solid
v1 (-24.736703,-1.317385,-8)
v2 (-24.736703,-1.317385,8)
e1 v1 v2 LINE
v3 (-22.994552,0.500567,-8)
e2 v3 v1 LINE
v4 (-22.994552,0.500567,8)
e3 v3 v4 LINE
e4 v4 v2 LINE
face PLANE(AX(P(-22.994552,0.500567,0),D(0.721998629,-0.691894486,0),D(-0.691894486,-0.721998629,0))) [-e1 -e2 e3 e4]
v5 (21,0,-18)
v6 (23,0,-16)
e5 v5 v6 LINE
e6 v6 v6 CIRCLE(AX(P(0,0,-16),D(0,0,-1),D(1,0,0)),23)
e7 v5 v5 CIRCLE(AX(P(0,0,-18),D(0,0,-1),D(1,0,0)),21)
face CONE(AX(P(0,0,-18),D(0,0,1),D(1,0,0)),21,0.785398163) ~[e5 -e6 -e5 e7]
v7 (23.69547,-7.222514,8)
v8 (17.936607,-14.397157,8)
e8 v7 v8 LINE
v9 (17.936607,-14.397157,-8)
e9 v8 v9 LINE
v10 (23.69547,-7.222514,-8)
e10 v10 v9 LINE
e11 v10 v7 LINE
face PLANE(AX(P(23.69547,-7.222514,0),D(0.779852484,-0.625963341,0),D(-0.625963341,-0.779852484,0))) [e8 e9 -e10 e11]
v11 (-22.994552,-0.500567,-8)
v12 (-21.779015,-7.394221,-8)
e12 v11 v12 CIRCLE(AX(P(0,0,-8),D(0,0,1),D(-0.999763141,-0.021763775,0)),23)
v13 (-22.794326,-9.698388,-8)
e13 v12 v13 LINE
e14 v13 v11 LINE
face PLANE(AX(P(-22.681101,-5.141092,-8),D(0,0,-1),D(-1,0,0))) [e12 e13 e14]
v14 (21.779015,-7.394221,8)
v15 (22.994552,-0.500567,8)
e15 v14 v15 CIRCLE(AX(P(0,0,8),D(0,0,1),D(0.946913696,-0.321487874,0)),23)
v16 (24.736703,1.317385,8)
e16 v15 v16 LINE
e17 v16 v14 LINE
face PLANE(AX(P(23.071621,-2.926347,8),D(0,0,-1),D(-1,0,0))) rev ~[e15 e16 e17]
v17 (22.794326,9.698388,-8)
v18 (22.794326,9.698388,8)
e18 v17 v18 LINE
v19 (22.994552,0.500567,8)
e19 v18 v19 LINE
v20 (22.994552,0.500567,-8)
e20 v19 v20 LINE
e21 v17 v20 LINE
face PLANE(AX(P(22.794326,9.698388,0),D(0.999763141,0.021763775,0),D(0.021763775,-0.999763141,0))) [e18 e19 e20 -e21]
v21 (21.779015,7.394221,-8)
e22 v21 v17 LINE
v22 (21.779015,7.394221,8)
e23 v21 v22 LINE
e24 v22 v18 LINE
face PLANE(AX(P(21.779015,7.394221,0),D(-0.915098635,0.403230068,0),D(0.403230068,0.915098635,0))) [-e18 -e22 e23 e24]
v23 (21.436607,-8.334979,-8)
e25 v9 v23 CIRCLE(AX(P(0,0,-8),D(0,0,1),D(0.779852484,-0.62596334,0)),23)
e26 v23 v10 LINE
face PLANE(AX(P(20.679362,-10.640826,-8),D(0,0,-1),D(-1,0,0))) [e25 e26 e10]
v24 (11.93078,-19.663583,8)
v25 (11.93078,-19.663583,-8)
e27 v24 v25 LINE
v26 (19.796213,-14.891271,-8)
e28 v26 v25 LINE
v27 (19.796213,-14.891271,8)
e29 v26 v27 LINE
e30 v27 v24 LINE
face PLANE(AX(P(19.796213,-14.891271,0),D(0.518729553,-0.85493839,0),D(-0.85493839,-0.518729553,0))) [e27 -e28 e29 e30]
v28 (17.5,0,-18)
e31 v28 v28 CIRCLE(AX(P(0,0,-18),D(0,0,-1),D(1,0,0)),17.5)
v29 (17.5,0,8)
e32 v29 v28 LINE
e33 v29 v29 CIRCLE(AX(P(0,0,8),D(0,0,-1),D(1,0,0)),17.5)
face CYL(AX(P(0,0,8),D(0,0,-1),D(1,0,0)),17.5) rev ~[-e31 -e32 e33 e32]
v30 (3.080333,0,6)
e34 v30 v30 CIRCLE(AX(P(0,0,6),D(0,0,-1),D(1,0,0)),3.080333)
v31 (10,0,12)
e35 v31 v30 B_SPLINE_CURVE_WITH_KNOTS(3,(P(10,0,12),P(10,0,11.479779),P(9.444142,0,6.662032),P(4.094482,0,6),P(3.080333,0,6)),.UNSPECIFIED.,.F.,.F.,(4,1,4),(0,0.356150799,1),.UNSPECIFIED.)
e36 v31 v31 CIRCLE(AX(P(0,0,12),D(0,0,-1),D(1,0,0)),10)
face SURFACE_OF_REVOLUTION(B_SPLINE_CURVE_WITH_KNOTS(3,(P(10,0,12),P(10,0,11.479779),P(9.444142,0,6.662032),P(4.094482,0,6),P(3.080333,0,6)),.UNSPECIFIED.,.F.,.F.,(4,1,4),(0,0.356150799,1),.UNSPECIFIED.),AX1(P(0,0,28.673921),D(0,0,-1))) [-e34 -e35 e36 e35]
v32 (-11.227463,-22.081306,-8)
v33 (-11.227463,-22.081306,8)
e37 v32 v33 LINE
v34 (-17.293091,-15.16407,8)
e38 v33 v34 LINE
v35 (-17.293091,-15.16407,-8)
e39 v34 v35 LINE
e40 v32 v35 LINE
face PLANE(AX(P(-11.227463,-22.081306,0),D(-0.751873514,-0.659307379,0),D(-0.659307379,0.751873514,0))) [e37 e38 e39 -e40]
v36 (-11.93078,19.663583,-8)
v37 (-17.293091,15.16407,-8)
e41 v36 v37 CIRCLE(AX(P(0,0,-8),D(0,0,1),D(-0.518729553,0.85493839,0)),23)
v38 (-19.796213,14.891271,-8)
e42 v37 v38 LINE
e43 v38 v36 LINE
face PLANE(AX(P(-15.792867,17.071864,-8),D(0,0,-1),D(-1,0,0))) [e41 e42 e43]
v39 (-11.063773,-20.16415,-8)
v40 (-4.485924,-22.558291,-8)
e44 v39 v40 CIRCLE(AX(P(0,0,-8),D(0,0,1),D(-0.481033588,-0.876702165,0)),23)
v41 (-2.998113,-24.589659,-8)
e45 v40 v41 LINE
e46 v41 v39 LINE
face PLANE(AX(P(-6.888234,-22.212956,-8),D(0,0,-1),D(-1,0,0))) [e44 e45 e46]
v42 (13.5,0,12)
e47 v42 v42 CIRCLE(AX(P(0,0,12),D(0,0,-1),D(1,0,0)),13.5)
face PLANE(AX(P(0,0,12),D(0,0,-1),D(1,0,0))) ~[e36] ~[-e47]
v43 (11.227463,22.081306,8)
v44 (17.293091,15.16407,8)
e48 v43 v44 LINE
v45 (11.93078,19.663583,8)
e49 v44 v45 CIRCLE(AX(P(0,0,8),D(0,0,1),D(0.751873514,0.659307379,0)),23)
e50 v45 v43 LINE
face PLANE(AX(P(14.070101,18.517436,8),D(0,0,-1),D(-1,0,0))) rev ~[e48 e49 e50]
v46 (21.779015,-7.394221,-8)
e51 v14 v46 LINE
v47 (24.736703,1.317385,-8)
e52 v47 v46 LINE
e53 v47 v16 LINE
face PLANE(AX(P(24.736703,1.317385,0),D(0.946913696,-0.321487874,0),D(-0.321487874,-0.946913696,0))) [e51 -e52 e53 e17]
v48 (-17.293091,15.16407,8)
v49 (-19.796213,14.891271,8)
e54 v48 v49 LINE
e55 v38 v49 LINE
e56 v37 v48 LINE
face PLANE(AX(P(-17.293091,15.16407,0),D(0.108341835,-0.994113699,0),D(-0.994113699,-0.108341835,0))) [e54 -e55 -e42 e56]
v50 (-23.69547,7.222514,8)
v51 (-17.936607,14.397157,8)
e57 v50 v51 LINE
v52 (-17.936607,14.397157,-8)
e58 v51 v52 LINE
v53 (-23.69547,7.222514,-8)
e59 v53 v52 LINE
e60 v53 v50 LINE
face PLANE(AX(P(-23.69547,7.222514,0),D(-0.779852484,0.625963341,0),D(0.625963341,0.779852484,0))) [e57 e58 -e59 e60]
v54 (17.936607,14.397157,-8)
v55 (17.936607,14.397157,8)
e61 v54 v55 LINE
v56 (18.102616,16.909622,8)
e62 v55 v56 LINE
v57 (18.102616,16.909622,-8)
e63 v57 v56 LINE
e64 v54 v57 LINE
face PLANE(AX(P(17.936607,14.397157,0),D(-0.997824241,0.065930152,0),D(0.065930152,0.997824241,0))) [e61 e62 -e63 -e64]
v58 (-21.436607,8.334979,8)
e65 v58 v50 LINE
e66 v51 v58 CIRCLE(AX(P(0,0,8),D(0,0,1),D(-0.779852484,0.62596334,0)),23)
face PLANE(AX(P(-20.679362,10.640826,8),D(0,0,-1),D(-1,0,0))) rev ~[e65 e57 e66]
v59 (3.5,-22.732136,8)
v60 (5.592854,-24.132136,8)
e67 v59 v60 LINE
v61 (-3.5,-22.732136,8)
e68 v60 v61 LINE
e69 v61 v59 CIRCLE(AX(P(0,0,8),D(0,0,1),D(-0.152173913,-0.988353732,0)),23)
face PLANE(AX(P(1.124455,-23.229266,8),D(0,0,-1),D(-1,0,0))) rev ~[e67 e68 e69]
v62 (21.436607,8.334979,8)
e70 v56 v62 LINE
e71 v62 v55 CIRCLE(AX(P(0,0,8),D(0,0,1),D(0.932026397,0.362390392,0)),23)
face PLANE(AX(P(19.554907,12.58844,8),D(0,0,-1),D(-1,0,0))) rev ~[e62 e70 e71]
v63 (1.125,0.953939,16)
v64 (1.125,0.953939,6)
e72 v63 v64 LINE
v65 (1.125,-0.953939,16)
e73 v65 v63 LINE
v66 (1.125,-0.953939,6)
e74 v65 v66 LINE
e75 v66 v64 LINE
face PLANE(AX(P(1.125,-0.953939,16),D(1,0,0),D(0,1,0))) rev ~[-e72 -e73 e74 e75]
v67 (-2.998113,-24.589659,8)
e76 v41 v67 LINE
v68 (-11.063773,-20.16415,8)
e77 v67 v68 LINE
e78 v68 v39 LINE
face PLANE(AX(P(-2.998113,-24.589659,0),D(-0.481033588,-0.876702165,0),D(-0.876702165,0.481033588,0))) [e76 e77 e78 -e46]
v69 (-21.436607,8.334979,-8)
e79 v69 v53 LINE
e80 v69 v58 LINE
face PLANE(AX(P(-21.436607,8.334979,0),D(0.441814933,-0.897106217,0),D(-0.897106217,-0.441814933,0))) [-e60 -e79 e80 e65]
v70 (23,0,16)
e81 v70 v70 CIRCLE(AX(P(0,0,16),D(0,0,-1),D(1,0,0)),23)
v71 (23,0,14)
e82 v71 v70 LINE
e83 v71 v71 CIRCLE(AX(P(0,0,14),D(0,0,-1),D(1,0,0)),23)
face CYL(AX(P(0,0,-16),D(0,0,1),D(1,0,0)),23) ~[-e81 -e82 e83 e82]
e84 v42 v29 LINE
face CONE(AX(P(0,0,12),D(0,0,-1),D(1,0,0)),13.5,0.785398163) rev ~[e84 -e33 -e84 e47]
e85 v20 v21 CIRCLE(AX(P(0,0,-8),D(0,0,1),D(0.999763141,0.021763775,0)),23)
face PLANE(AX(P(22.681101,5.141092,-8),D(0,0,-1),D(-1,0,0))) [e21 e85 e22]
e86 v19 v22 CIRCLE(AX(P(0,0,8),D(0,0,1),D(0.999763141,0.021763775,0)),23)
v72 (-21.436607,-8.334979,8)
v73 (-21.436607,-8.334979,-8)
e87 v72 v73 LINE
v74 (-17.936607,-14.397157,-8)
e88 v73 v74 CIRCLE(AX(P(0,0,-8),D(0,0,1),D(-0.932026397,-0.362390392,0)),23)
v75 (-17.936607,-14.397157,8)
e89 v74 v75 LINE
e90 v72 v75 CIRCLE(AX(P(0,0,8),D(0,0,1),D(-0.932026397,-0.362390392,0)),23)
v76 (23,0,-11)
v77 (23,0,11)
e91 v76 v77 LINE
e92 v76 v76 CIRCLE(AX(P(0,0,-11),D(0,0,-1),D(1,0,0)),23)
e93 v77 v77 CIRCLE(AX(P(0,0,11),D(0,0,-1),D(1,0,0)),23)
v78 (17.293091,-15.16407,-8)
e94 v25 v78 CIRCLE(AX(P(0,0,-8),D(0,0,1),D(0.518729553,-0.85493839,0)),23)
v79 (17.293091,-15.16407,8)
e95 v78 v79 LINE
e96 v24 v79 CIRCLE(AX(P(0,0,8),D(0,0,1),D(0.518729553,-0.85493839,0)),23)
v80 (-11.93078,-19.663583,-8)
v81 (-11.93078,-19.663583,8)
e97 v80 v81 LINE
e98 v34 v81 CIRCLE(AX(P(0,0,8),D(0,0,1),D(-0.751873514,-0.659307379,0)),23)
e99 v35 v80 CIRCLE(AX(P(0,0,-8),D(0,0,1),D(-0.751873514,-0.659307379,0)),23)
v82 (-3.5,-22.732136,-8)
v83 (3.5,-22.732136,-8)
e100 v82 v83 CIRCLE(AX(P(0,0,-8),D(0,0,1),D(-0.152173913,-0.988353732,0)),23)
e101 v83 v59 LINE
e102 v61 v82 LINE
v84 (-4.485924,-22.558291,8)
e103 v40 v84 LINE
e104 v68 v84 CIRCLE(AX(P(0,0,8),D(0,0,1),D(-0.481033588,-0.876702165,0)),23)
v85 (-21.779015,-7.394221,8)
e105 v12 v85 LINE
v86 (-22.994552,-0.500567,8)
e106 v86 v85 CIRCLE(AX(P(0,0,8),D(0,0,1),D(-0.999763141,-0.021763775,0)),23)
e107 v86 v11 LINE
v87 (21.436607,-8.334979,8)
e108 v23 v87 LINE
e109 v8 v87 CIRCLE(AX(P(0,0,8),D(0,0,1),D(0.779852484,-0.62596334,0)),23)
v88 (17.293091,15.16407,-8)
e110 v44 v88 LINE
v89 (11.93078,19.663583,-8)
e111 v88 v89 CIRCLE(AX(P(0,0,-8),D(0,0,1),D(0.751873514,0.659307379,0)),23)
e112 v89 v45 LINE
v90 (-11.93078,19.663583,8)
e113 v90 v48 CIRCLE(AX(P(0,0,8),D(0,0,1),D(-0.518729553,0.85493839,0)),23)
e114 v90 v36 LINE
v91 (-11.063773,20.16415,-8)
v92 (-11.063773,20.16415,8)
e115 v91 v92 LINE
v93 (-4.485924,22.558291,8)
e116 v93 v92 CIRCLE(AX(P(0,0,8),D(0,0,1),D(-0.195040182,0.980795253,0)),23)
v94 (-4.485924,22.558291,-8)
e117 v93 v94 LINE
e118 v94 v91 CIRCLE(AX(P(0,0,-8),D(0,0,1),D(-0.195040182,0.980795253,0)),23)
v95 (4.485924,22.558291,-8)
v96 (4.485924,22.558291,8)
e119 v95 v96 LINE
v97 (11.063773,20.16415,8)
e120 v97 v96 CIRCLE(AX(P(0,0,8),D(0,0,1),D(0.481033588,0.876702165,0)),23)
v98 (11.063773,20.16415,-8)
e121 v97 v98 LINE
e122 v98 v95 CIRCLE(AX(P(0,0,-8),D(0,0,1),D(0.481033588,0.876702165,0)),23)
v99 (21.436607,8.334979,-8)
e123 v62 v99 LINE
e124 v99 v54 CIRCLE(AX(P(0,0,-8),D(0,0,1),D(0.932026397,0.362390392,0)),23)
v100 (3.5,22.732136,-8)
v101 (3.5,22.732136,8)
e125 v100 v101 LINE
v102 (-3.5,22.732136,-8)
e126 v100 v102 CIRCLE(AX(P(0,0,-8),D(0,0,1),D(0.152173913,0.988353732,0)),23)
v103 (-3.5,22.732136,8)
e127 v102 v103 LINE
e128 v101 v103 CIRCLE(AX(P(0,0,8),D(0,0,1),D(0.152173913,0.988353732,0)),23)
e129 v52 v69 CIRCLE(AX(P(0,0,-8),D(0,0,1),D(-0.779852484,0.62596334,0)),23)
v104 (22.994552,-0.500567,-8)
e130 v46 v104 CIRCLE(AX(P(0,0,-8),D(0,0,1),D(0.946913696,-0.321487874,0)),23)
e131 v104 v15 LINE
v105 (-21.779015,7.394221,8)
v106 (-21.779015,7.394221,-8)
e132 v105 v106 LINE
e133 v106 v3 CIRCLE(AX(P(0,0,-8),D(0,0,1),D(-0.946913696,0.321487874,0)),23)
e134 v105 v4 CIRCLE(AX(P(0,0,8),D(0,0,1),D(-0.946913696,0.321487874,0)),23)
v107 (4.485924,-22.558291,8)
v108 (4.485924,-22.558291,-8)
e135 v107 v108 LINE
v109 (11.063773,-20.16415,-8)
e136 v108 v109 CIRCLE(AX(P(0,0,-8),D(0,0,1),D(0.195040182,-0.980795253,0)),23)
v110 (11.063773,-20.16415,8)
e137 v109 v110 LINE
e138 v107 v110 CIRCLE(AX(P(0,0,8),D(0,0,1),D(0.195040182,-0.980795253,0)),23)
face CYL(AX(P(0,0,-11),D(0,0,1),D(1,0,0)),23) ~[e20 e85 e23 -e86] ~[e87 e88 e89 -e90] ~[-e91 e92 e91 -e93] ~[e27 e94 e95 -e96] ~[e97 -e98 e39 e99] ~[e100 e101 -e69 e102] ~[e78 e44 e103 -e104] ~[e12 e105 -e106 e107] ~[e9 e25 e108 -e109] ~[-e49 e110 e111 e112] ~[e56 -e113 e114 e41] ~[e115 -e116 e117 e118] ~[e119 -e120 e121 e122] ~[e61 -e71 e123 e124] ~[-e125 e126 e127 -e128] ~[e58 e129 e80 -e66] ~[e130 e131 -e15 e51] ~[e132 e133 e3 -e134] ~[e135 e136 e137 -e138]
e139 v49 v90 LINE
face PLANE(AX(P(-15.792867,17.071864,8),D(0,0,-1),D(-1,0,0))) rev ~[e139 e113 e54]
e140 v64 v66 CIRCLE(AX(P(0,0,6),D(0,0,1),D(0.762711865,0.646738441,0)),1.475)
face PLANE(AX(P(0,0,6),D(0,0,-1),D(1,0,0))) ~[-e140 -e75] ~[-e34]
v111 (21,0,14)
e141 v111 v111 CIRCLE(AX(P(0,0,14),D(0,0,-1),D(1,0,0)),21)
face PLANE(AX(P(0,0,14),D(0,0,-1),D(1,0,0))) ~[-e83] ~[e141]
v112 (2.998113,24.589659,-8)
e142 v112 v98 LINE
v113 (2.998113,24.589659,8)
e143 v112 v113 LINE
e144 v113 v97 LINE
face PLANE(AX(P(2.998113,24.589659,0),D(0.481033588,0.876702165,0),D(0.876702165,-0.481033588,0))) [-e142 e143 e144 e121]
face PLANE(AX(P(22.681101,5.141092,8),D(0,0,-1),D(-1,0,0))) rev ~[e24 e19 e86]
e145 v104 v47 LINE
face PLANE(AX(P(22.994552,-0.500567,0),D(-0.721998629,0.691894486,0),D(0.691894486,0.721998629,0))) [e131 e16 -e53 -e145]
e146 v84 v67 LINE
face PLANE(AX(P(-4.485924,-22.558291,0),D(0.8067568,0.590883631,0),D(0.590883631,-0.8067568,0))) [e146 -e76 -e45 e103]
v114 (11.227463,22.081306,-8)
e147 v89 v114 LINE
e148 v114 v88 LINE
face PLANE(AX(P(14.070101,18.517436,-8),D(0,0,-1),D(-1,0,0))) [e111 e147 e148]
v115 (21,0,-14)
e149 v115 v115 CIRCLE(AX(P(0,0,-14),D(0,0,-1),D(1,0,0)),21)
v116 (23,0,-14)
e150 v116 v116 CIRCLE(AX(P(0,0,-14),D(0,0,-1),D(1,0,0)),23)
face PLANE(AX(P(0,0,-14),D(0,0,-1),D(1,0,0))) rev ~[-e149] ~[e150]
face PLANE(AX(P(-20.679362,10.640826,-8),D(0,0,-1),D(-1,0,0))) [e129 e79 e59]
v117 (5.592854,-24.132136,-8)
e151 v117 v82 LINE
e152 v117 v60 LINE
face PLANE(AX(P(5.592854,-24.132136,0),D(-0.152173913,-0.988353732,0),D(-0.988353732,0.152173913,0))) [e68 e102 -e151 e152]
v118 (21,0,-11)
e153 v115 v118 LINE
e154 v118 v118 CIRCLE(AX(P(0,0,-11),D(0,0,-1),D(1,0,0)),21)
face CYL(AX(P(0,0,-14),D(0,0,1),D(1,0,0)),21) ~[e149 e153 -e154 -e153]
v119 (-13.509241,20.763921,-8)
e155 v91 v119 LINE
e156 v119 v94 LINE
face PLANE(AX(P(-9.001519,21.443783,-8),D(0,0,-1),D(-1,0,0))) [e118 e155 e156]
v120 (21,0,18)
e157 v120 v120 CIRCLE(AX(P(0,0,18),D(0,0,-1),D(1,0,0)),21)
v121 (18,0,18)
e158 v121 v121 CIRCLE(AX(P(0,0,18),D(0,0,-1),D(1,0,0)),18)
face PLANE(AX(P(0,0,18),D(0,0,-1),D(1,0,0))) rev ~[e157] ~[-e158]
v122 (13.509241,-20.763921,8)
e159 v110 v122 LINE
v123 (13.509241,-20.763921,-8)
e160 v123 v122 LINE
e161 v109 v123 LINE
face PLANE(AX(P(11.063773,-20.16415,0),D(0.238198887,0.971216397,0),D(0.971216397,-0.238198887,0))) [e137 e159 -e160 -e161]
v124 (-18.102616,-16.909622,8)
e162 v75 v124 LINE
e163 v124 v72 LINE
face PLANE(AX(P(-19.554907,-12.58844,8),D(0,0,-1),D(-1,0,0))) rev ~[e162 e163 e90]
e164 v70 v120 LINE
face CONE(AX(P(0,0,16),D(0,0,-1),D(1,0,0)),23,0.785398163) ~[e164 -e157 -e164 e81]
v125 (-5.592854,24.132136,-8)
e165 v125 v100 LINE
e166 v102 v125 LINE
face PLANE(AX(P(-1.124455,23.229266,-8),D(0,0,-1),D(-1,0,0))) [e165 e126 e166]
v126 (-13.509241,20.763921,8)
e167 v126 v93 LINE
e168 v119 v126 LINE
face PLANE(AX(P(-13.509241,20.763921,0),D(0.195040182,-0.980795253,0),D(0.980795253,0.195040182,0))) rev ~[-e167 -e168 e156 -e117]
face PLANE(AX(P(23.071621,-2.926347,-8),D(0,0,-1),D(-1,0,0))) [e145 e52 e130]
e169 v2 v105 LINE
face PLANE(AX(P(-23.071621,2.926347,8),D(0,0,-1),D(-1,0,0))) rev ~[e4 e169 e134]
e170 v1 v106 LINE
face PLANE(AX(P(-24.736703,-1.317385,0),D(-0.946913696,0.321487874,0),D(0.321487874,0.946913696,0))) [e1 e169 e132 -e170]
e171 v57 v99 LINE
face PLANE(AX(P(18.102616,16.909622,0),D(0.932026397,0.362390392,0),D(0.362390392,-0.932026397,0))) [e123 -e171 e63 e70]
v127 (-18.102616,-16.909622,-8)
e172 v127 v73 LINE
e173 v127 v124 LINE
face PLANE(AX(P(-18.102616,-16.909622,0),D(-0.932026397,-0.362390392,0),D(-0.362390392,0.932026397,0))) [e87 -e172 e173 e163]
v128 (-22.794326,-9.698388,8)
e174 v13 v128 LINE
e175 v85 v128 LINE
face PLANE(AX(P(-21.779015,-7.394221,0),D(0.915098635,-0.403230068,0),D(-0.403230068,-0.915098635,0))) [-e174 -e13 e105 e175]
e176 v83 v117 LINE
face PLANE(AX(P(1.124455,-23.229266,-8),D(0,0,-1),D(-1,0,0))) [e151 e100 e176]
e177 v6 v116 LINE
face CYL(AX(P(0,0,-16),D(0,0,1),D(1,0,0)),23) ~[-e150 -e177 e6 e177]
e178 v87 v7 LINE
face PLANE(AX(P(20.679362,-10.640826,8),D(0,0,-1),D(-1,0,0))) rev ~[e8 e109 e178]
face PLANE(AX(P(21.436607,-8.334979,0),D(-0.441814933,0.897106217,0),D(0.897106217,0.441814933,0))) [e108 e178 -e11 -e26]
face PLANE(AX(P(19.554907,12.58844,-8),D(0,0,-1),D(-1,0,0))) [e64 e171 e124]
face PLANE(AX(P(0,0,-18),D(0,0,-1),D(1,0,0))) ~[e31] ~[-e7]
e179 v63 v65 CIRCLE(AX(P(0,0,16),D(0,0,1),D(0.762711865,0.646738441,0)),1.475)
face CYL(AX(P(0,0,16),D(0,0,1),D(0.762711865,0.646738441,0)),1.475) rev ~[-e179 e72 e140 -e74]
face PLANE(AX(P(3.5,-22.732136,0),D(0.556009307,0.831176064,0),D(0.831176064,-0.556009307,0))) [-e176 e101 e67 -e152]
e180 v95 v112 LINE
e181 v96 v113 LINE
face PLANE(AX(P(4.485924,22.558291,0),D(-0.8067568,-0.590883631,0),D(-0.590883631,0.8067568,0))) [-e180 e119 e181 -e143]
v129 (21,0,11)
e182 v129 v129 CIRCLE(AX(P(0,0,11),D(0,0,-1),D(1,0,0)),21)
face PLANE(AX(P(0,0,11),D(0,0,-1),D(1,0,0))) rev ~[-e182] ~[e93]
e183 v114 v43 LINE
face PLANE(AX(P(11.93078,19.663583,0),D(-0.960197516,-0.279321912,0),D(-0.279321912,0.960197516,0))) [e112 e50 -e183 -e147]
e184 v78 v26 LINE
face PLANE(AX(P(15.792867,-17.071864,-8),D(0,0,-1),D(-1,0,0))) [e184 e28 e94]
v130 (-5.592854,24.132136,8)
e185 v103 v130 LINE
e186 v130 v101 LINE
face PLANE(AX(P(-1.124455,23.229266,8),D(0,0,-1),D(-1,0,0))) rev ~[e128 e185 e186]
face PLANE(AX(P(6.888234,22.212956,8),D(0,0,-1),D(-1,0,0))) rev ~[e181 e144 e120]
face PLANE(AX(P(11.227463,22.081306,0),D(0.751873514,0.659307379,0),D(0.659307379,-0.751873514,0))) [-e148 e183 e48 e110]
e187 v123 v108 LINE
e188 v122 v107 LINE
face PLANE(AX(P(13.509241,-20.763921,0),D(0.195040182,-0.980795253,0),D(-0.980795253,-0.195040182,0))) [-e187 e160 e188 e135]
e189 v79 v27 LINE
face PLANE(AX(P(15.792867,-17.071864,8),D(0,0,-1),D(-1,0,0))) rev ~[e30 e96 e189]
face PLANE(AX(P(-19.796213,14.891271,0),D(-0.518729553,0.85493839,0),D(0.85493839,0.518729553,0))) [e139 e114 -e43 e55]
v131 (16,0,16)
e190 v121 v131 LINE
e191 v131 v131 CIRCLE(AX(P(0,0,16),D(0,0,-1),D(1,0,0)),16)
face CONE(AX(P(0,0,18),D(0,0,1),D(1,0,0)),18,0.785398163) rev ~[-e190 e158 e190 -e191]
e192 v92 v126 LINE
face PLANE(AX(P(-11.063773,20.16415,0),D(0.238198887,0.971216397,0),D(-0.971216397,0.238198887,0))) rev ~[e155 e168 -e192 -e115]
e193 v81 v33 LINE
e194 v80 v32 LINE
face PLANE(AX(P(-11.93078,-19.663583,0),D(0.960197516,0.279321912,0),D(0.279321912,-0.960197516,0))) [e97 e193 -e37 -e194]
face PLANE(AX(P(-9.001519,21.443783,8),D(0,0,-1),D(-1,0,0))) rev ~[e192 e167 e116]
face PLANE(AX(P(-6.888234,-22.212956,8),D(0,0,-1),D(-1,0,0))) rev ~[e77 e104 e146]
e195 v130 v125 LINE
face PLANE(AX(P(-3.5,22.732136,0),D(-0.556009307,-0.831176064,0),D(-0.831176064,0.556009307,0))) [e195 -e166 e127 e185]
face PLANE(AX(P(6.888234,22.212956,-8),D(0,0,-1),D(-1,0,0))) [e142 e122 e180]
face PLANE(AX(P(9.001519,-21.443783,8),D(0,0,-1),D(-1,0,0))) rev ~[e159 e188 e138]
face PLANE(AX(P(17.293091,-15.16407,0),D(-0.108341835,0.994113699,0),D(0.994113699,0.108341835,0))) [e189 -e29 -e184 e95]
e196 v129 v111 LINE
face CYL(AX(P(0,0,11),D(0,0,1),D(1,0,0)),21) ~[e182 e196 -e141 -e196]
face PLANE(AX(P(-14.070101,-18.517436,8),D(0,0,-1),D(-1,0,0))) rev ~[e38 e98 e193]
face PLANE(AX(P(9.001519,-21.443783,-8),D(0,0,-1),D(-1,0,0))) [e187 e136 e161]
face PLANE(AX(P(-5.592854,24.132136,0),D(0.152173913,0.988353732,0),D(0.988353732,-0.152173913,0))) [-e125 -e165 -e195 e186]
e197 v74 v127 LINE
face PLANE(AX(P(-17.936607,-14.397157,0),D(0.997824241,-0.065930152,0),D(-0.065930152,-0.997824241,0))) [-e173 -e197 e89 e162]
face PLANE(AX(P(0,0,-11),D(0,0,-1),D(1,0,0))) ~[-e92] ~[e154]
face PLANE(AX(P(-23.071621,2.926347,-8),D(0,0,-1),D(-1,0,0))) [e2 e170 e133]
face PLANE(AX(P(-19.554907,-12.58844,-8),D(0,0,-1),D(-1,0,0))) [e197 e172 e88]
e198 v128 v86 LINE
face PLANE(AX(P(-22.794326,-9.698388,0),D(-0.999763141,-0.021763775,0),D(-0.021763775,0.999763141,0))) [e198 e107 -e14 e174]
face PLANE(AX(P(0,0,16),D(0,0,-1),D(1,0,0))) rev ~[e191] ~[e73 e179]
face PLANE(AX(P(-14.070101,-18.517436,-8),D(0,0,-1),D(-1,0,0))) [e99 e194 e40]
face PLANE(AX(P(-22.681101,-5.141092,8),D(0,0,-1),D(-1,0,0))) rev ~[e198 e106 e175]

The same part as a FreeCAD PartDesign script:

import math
import FreeCAD as App
import Part
import Sketcher

doc = App.newDocument("Part")
body = doc.addObject("PartDesign::Body", "Body")

# Sketch on YZ plane
sketch1 = doc.addObject("Sketcher::SketchObject", "Sketch")
body.addObject(sketch1)
sketch1.AttachmentSupport = (doc.YZ_Plane, [""])
sketch1.MapMode = "FlatFace"
sketch1.addGeometry(Part.LineSegment(App.Vector(23, 16, 0), App.Vector(21, 18, 0)), False)
sketch1.addGeometry(Part.LineSegment(App.Vector(21, 18, 0), App.Vector(18, 18, 0)), False)
sketch1.addGeometry(Part.LineSegment(App.Vector(18, 18, 0), App.Vector(16, 16, 0)), False)
sketch1.addGeometry(Part.LineSegment(App.Vector(16, 16, 0), App.Vector(0, 16, 0)), False)
sketch1.addGeometry(Part.LineSegment(App.Vector(0, 16, 0), App.Vector(0, 6, 0)), False)
sketch1.addGeometry(Part.LineSegment(App.Vector(0, 6, 0), App.Vector(3.080333, 6, 0)), False)
sketch1.addGeometry(Part.BSplineCurve([App.Vector(10, 12, 0), App.Vector(10, 11.479779, 0), App.Vector(9.444142, 6.662032, 0), App.Vector(4.094482, 6, 0), App.Vector(3.080333, 6, 0)], [4, 1, 4], [0, 0.356150799, 1], False, 3, [1, 1, 1, 1, 1], False), False)
sketch1.addGeometry(Part.LineSegment(App.Vector(10, 12, 0), App.Vector(13.5, 12, 0)), False)
sketch1.addGeometry(Part.LineSegment(App.Vector(13.5, 12, 0), App.Vector(17.5, 8, 0)), False)
sketch1.addGeometry(Part.LineSegment(App.Vector(17.5, 8, 0), App.Vector(17.5, -18, 0)), False)
sketch1.addGeometry(Part.LineSegment(App.Vector(17.5, -18, 0), App.Vector(21, -18, 0)), False)
sketch1.addGeometry(Part.LineSegment(App.Vector(21, -18, 0), App.Vector(23, -16, 0)), False)
sketch1.addGeometry(Part.LineSegment(App.Vector(23, -16, 0), App.Vector(23, 16, 0)), False)
sketch1.addConstraint(Sketcher.Constraint("Block", 6))
sketch1.addConstraint(Sketcher.Constraint("Coincident", 0, 2, 1, 1))
sketch1.addConstraint(Sketcher.Constraint("Coincident", 1, 2, 2, 1))
sketch1.addConstraint(Sketcher.Constraint("Coincident", 2, 2, 3, 1))
sketch1.addConstraint(Sketcher.Constraint("Coincident", 3, 2, 4, 1))
sketch1.addConstraint(Sketcher.Constraint("Coincident", 4, 2, 5, 1))
sketch1.addConstraint(Sketcher.Constraint("Coincident", 5, 2, 6, 2))
sketch1.addConstraint(Sketcher.Constraint("Coincident", 6, 1, 7, 1))
sketch1.addConstraint(Sketcher.Constraint("Coincident", 7, 2, 8, 1))
sketch1.addConstraint(Sketcher.Constraint("Coincident", 8, 2, 9, 1))
sketch1.addConstraint(Sketcher.Constraint("Coincident", 9, 2, 10, 1))
sketch1.addConstraint(Sketcher.Constraint("Coincident", 10, 2, 11, 1))
sketch1.addConstraint(Sketcher.Constraint("Coincident", 11, 2, 12, 1))
sketch1.addConstraint(Sketcher.Constraint("Coincident", 12, 2, 0, 1))
sketch1.addConstraint(Sketcher.Constraint("Horizontal", 1))
sketch1.addConstraint(Sketcher.Constraint("Horizontal", 3))
sketch1.addConstraint(Sketcher.Constraint("Vertical", 4))
sketch1.addConstraint(Sketcher.Constraint("Horizontal", 5))
sketch1.addConstraint(Sketcher.Constraint("Horizontal", 7))
sketch1.addConstraint(Sketcher.Constraint("Vertical", 9))
sketch1.addConstraint(Sketcher.Constraint("Horizontal", 10))
sketch1.addConstraint(Sketcher.Constraint("Vertical", 12))
sketch1.addConstraint(Sketcher.Constraint("Symmetric", 0, 2, 10, 2, -1))
sketch1.addConstraint(Sketcher.Constraint("PointOnObject", 3, 2, -2))
sketch1.addConstraint(Sketcher.Constraint("Perpendicular", 0, 2))
sketch1.addConstraint(Sketcher.Constraint("Perpendicular", 2, 8))
sketch1.addConstraint(Sketcher.Constraint("Perpendicular", 8, 11))
sketch1.addConstraint(Sketcher.Constraint("Horizontal", 3, 2, 12, 2))
sketch1.addConstraint(Sketcher.Constraint("Equal", 7, 10))
sketch1.addConstraint(Sketcher.Constraint("Equal", 0, 2))
sketch1.addConstraint(Sketcher.Constraint("DistanceX", 1, 2, 1, 1, 3.0))
sketch1.addConstraint(Sketcher.Constraint("DistanceX", 3, 2, 3, 1, 16.0))
sketch1.addConstraint(Sketcher.Constraint("DistanceY", 4, 2, 4, 1, 10.0))
sketch1.addConstraint(Sketcher.Constraint("DistanceY", 9, 2, 9, 1, 26.0))
sketch1.addConstraint(Sketcher.Constraint("DistanceX", -1, 1, 0, 2, 21.0))
revolution = doc.addObject("PartDesign::Revolution", "Revolution")
body.addObject(revolution)
revolution.Profile = sketch1
revolution.ReferenceAxis = (sketch1, ["V_Axis"])
revolution.Angle = 360

# Sketch on XY plane
sketch2 = doc.addObject("Sketcher::SketchObject", "Sketch001")
body.addObject(sketch2)
sketch2.AttachmentSupport = (doc.XY_Plane, [""])
sketch2.MapMode = "FlatFace"
sketch2.AttachmentOffset = App.Placement(App.Vector(0, 0, 16), App.Rotation())
sketch2.addGeometry(Part.LineSegment(App.Vector(1.1, -1, 0), App.Vector(1.1, 1, 0)), False)
sketch2.addGeometry(Part.ArcOfCircle(Part.Circle(App.Vector(0, 0, 0), App.Vector(0, 0, 1), 1.5), math.radians(40), math.radians(320)), False)
sketch2.addConstraint(Sketcher.Constraint("Coincident", 0, 1, 1, 2))
sketch2.addConstraint(Sketcher.Constraint("Coincident", 1, 1, 0, 2))
sketch2.addConstraint(Sketcher.Constraint("Vertical", 0))
sketch2.addConstraint(Sketcher.Constraint("Coincident", 1, 3, -1, 1))
sketch2.addConstraint(Sketcher.Constraint("Radius", 1, 1.475))
sketch2.addConstraint(Sketcher.Constraint("DistanceX", -1, 1, 0, 1, 1.125))
pocket1 = doc.addObject("PartDesign::Pocket", "Pocket")
body.addObject(pocket1)
pocket1.Profile = sketch2
pocket1.Type = "ThroughAll"

# Sketch on YZ plane
sketch3 = doc.addObject("Sketcher::SketchObject", "Sketch002")
body.addObject(sketch3)
sketch3.AttachmentSupport = (doc.YZ_Plane, [""])
sketch3.MapMode = "FlatFace"
sketch3.addGeometry(Part.LineSegment(App.Vector(23, -16, 0), App.Vector(21, -18, 0)), False)
sketch3.addGeometry(Part.LineSegment(App.Vector(21, -18, 0), App.Vector(24.3, -18, 0)), False)
sketch3.addGeometry(Part.LineSegment(App.Vector(24.3, -18, 0), App.Vector(24.3, 18, 0)), False)
sketch3.addGeometry(Part.LineSegment(App.Vector(24.3, 18, 0), App.Vector(21, 18, 0)), False)
sketch3.addGeometry(Part.LineSegment(App.Vector(21, 18, 0), App.Vector(23, 16, 0)), False)
sketch3.addGeometry(Part.LineSegment(App.Vector(23, 16, 0), App.Vector(23, 14, 0)), False)
sketch3.addGeometry(Part.LineSegment(App.Vector(23, 14, 0), App.Vector(21, 14, 0)), False)
sketch3.addGeometry(Part.LineSegment(App.Vector(21, 14, 0), App.Vector(21, 11, 0)), False)
sketch3.addGeometry(Part.LineSegment(App.Vector(21, 11, 0), App.Vector(23, 11, 0)), False)
sketch3.addGeometry(Part.LineSegment(App.Vector(23, 11, 0), App.Vector(23, -11, 0)), False)
sketch3.addGeometry(Part.LineSegment(App.Vector(23, -11, 0), App.Vector(21, -11, 0)), False)
sketch3.addGeometry(Part.LineSegment(App.Vector(21, -11, 0), App.Vector(21, -14, 0)), False)
sketch3.addGeometry(Part.LineSegment(App.Vector(21, -14, 0), App.Vector(23, -14, 0)), False)
sketch3.addGeometry(Part.LineSegment(App.Vector(23, -14, 0), App.Vector(23, -16, 0)), False)
sketch3.addConstraint(Sketcher.Constraint("Coincident", 0, 2, 1, 1))
sketch3.addConstraint(Sketcher.Constraint("Coincident", 1, 2, 2, 1))
sketch3.addConstraint(Sketcher.Constraint("Coincident", 2, 2, 3, 1))
sketch3.addConstraint(Sketcher.Constraint("Coincident", 3, 2, 4, 1))
sketch3.addConstraint(Sketcher.Constraint("Coincident", 4, 2, 5, 1))
sketch3.addConstraint(Sketcher.Constraint("Coincident", 5, 2, 6, 1))
sketch3.addConstraint(Sketcher.Constraint("Coincident", 6, 2, 7, 1))
sketch3.addConstraint(Sketcher.Constraint("Coincident", 7, 2, 8, 1))
sketch3.addConstraint(Sketcher.Constraint("Coincident", 8, 2, 9, 1))
sketch3.addConstraint(Sketcher.Constraint("Coincident", 9, 2, 10, 1))
sketch3.addConstraint(Sketcher.Constraint("Coincident", 10, 2, 11, 1))
sketch3.addConstraint(Sketcher.Constraint("Coincident", 11, 2, 12, 1))
sketch3.addConstraint(Sketcher.Constraint("Coincident", 12, 2, 13, 1))
sketch3.addConstraint(Sketcher.Constraint("Coincident", 13, 2, 0, 1))
sketch3.addConstraint(Sketcher.Constraint("Horizontal", 1))
sketch3.addConstraint(Sketcher.Constraint("Vertical", 2))
sketch3.addConstraint(Sketcher.Constraint("Horizontal", 3))
sketch3.addConstraint(Sketcher.Constraint("Vertical", 5))
sketch3.addConstraint(Sketcher.Constraint("Horizontal", 6))
sketch3.addConstraint(Sketcher.Constraint("Vertical", 7))
sketch3.addConstraint(Sketcher.Constraint("Horizontal", 8))
sketch3.addConstraint(Sketcher.Constraint("Vertical", 9))
sketch3.addConstraint(Sketcher.Constraint("Horizontal", 10))
sketch3.addConstraint(Sketcher.Constraint("Vertical", 11))
sketch3.addConstraint(Sketcher.Constraint("Horizontal", 12))
sketch3.addConstraint(Sketcher.Constraint("Vertical", 13))
sketch3.addConstraint(Sketcher.Constraint("Symmetric", 0, 2, 3, 2, -1))
sketch3.addConstraint(Sketcher.Constraint("Symmetric", 7, 2, 10, 2, -1))
sketch3.addConstraint(Sketcher.Constraint("Symmetric", 5, 2, 12, 2, -1))
sketch3.addConstraint(Sketcher.Constraint("Perpendicular", 0, 4))
sketch3.addConstraint(Sketcher.Constraint("Vertical", 3, 2, 6, 2))
sketch3.addConstraint(Sketcher.Constraint("Vertical", 5, 2, 8, 2))
sketch3.addConstraint(Sketcher.Constraint("Equal", 12, 5))
sketch3.addConstraint(Sketcher.Constraint("Equal", 5, 13))
sketch3.addConstraint(Sketcher.Constraint("DistanceX", 6, 2, 6, 1, 2.0))
sketch3.addConstraint(Sketcher.Constraint("DistanceY", 2, 1, 2, 2, 36.0))
sketch3.addConstraint(Sketcher.Constraint("DistanceY", 7, 2, 7, 1, 3.0))
sketch3.addConstraint(Sketcher.Constraint("DistanceX", -1, 1, 0, 2, 21.0))
sketch3.addConstraint(Sketcher.Constraint("DistanceX", 1, 1, 1, 2, 3.334722))
groove = doc.addObject("PartDesign::Groove", "Groove")
body.addObject(groove)
groove.Profile = sketch3
groove.ReferenceAxis = (sketch3, ["V_Axis"])
groove.Angle = 360

# Sketch on XY plane
sketch4 = doc.addObject("Sketcher::SketchObject", "Sketch003")
body.addObject(sketch4)
sketch4.AttachmentSupport = (doc.XY_Plane, [""])
sketch4.MapMode = "FlatFace"
sketch4.addGeometry(Part.LineSegment(App.Vector(-5.6, 24.1, 0), App.Vector(-3.5, 22.7, 0)), False)
sketch4.addGeometry(Part.ArcOfCircle(Part.Circle(App.Vector(0, 0, 0), App.Vector(0, 0, 1), 23), math.radians(81.25), math.radians(98.75)), False)
sketch4.addGeometry(Part.LineSegment(App.Vector(3.5, 22.7, 0), App.Vector(-5.6, 24.1, 0)), False)
sketch4.addGeometry(Part.LineSegment(App.Vector(11.1, 20.2, 0), App.Vector(3, 24.6, 0)), False)
sketch4.addGeometry(Part.LineSegment(App.Vector(3, 24.6, 0), App.Vector(4.5, 22.6, 0)), False)
sketch4.addGeometry(Part.ArcOfCircle(Part.Circle(App.Vector(0, 0, 0), App.Vector(0, 0, 1), 23), math.radians(61.25), math.radians(78.75)), False)
sketch4.addGeometry(Part.LineSegment(App.Vector(17.3, 15.2, 0), App.Vector(11.2, 22.1, 0)), False)
sketch4.addGeometry(Part.LineSegment(App.Vector(11.2, 22.1, 0), App.Vector(11.9, 19.7, 0)), False)
sketch4.addGeometry(Part.ArcOfCircle(Part.Circle(App.Vector(0, 0, 0), App.Vector(0, 0, 1), 23), math.radians(41.25), math.radians(58.75)), False)
sketch4.addGeometry(Part.LineSegment(App.Vector(21.4, 8.3, 0), App.Vector(18.1, 16.9, 0)), False)
sketch4.addGeometry(Part.LineSegment(App.Vector(18.1, 16.9, 0), App.Vector(17.9, 14.4, 0)), False)
sketch4.addGeometry(Part.ArcOfCircle(Part.Circle(App.Vector(0, 0, 0), App.Vector(0, 0, 1), 23), math.radians(21.25), math.radians(38.75)), False)
sketch4.addGeometry(Part.LineSegment(App.Vector(23, 0.5, 0), App.Vector(22.8, 9.7, 0)), False)
sketch4.addGeometry(Part.LineSegment(App.Vector(22.8, 9.7, 0), App.Vector(21.8, 7.4, 0)), False)
sketch4.addGeometry(Part.ArcOfCircle(Part.Circle(App.Vector(0, 0, 0), App.Vector(0, 0, 1), 23), math.radians(1.25), math.radians(18.75)), False)
sketch4.addGeometry(Part.LineSegment(App.Vector(21.8, -7.4, 0), App.Vector(24.7, 1.3, 0)), False)
sketch4.addGeometry(Part.LineSegment(App.Vector(24.7, 1.3, 0), App.Vector(23, -0.5, 0)), False)
sketch4.addGeometry(Part.ArcOfCircle(Part.Circle(App.Vector(0, 0, 0), App.Vector(0, 0, 1), 23), math.radians(-18.75), math.radians(-1.25)), False)
sketch4.addGeometry(Part.LineSegment(App.Vector(17.9, -14.4, 0), App.Vector(23.7, -7.2, 0)), False)
sketch4.addGeometry(Part.LineSegment(App.Vector(23.7, -7.2, 0), App.Vector(21.4, -8.3, 0)), False)
sketch4.addGeometry(Part.ArcOfCircle(Part.Circle(App.Vector(0, 0, 0), App.Vector(0, 0, 1), 23), math.radians(-38.75), math.radians(-21.25)), False)
sketch4.addGeometry(Part.LineSegment(App.Vector(11.9, -19.7, 0), App.Vector(19.8, -14.9, 0)), False)
sketch4.addGeometry(Part.LineSegment(App.Vector(19.8, -14.9, 0), App.Vector(17.3, -15.2, 0)), False)
sketch4.addGeometry(Part.ArcOfCircle(Part.Circle(App.Vector(0, 0, 0), App.Vector(0, 0, 1), 23), math.radians(-58.75), math.radians(-41.25)), False)
sketch4.addGeometry(Part.LineSegment(App.Vector(4.5, -22.6, 0), App.Vector(13.5, -20.8, 0)), False)
sketch4.addGeometry(Part.LineSegment(App.Vector(13.5, -20.8, 0), App.Vector(11.1, -20.2, 0)), False)
sketch4.addGeometry(Part.ArcOfCircle(Part.Circle(App.Vector(0, 0, 0), App.Vector(0, 0, 1), 23), math.radians(-78.75), math.radians(-61.25)), False)
sketch4.addGeometry(Part.LineSegment(App.Vector(-3.5, -22.7, 0), App.Vector(5.6, -24.1, 0)), False)
sketch4.addGeometry(Part.LineSegment(App.Vector(5.6, -24.1, 0), App.Vector(3.5, -22.7, 0)), False)
sketch4.addGeometry(Part.ArcOfCircle(Part.Circle(App.Vector(0, 0, 0), App.Vector(0, 0, 1), 23), math.radians(-98.75), math.radians(-81.25)), False)
sketch4.addGeometry(Part.LineSegment(App.Vector(-11.1, -20.2, 0), App.Vector(-3, -24.6, 0)), False)
sketch4.addGeometry(Part.LineSegment(App.Vector(-3, -24.6, 0), App.Vector(-4.5, -22.6, 0)), False)
sketch4.addGeometry(Part.ArcOfCircle(Part.Circle(App.Vector(0, 0, 0), App.Vector(0, 0, 1), 23), math.radians(-118.75), math.radians(-101.25)), False)
sketch4.addGeometry(Part.LineSegment(App.Vector(-17.3, -15.2, 0), App.Vector(-11.2, -22.1, 0)), False)
sketch4.addGeometry(Part.LineSegment(App.Vector(-11.2, -22.1, 0), App.Vector(-11.9, -19.7, 0)), False)
sketch4.addGeometry(Part.ArcOfCircle(Part.Circle(App.Vector(0, 0, 0), App.Vector(0, 0, 1), 23), math.radians(-138.75), math.radians(-121.25)), False)
sketch4.addGeometry(Part.LineSegment(App.Vector(-21.4, -8.3, 0), App.Vector(-18.1, -16.9, 0)), False)
sketch4.addGeometry(Part.LineSegment(App.Vector(-18.1, -16.9, 0), App.Vector(-17.9, -14.4, 0)), False)
sketch4.addGeometry(Part.ArcOfCircle(Part.Circle(App.Vector(0, 0, 0), App.Vector(0, 0, 1), 23), math.radians(-158.75), math.radians(-141.25)), False)
sketch4.addGeometry(Part.LineSegment(App.Vector(-23, -0.5, 0), App.Vector(-22.8, -9.7, 0)), False)
sketch4.addGeometry(Part.LineSegment(App.Vector(-22.8, -9.7, 0), App.Vector(-21.8, -7.4, 0)), False)
sketch4.addGeometry(Part.ArcOfCircle(Part.Circle(App.Vector(0, 0, 0), App.Vector(0, 0, 1), 23), math.radians(-178.75), math.radians(-161.25)), False)
sketch4.addGeometry(Part.LineSegment(App.Vector(-21.8, 7.4, 0), App.Vector(-24.7, -1.3, 0)), False)
sketch4.addGeometry(Part.LineSegment(App.Vector(-24.7, -1.3, 0), App.Vector(-23, 0.5, 0)), False)
sketch4.addGeometry(Part.ArcOfCircle(Part.Circle(App.Vector(0, 0, 0), App.Vector(0, 0, 1), 23), math.radians(161.25), math.radians(178.75)), False)
sketch4.addGeometry(Part.LineSegment(App.Vector(-17.9, 14.4, 0), App.Vector(-23.7, 7.2, 0)), False)
sketch4.addGeometry(Part.LineSegment(App.Vector(-23.7, 7.2, 0), App.Vector(-21.4, 8.3, 0)), False)
sketch4.addGeometry(Part.ArcOfCircle(Part.Circle(App.Vector(0, 0, 0), App.Vector(0, 0, 1), 23), math.radians(141.25), math.radians(158.75)), False)
sketch4.addGeometry(Part.LineSegment(App.Vector(-11.9, 19.7, 0), App.Vector(-19.8, 14.9, 0)), False)
sketch4.addGeometry(Part.LineSegment(App.Vector(-19.8, 14.9, 0), App.Vector(-17.3, 15.2, 0)), False)
sketch4.addGeometry(Part.ArcOfCircle(Part.Circle(App.Vector(0, 0, 0), App.Vector(0, 0, 1), 23), math.radians(121.25), math.radians(138.75)), False)
sketch4.addGeometry(Part.LineSegment(App.Vector(-4.5, 22.6, 0), App.Vector(-13.5, 20.8, 0)), False)
sketch4.addGeometry(Part.LineSegment(App.Vector(-13.5, 20.8, 0), App.Vector(-11.1, 20.2, 0)), False)
sketch4.addGeometry(Part.ArcOfCircle(Part.Circle(App.Vector(0, 0, 0), App.Vector(0, 0, 1), 23), math.radians(101.25), math.radians(118.75)), False)
sketch4.addConstraint(Sketcher.Constraint("Coincident", 0, 2, 1, 2))
sketch4.addConstraint(Sketcher.Constraint("Tangent", 1, 1, 2, 1))
sketch4.addConstraint(Sketcher.Constraint("Coincident", 2, 2, 0, 1))
sketch4.addConstraint(Sketcher.Constraint("Coincident", 3, 2, 4, 1))
sketch4.addConstraint(Sketcher.Constraint("Coincident", 4, 2, 5, 2))
sketch4.addConstraint(Sketcher.Constraint("Tangent", 5, 1, 3, 1))
sketch4.addConstraint(Sketcher.Constraint("Coincident", 6, 2, 7, 1))
sketch4.addConstraint(Sketcher.Constraint("Coincident", 7, 2, 8, 2))
sketch4.addConstraint(Sketcher.Constraint("Tangent", 8, 1, 6, 1))
sketch4.addConstraint(Sketcher.Constraint("Coincident", 9, 2, 10, 1))
sketch4.addConstraint(Sketcher.Constraint("Coincident", 10, 2, 11, 2))
sketch4.addConstraint(Sketcher.Constraint("Tangent", 11, 1, 9, 1))
sketch4.addConstraint(Sketcher.Constraint("Coincident", 12, 2, 13, 1))
sketch4.addConstraint(Sketcher.Constraint("Coincident", 13, 2, 14, 2))
sketch4.addConstraint(Sketcher.Constraint("Tangent", 14, 1, 12, 1))
sketch4.addConstraint(Sketcher.Constraint("Coincident", 15, 2, 16, 1))
sketch4.addConstraint(Sketcher.Constraint("Coincident", 16, 2, 17, 2))
sketch4.addConstraint(Sketcher.Constraint("Tangent", 17, 1, 15, 1))
sketch4.addConstraint(Sketcher.Constraint("Coincident", 18, 2, 19, 1))
sketch4.addConstraint(Sketcher.Constraint("Coincident", 19, 2, 20, 2))
sketch4.addConstraint(Sketcher.Constraint("Tangent", 20, 1, 18, 1))
sketch4.addConstraint(Sketcher.Constraint("Coincident", 21, 2, 22, 1))
sketch4.addConstraint(Sketcher.Constraint("Coincident", 22, 2, 23, 2))
sketch4.addConstraint(Sketcher.Constraint("Tangent", 23, 1, 21, 1))
sketch4.addConstraint(Sketcher.Constraint("Coincident", 24, 2, 25, 1))
sketch4.addConstraint(Sketcher.Constraint("Coincident", 25, 2, 26, 2))
sketch4.addConstraint(Sketcher.Constraint("Tangent", 26, 1, 24, 1))
sketch4.addConstraint(Sketcher.Constraint("Coincident", 27, 2, 28, 1))
sketch4.addConstraint(Sketcher.Constraint("Coincident", 28, 2, 29, 2))
sketch4.addConstraint(Sketcher.Constraint("Tangent", 29, 1, 27, 1))
sketch4.addConstraint(Sketcher.Constraint("Coincident", 30, 2, 31, 1))
sketch4.addConstraint(Sketcher.Constraint("Coincident", 31, 2, 32, 2))
sketch4.addConstraint(Sketcher.Constraint("Tangent", 32, 1, 30, 1))
sketch4.addConstraint(Sketcher.Constraint("Coincident", 33, 2, 34, 1))
sketch4.addConstraint(Sketcher.Constraint("Coincident", 34, 2, 35, 2))
sketch4.addConstraint(Sketcher.Constraint("Tangent", 35, 1, 33, 1))
sketch4.addConstraint(Sketcher.Constraint("Coincident", 36, 2, 37, 1))
sketch4.addConstraint(Sketcher.Constraint("Coincident", 37, 2, 38, 2))
sketch4.addConstraint(Sketcher.Constraint("Tangent", 38, 1, 36, 1))
sketch4.addConstraint(Sketcher.Constraint("Coincident", 39, 2, 40, 1))
sketch4.addConstraint(Sketcher.Constraint("Coincident", 40, 2, 41, 2))
sketch4.addConstraint(Sketcher.Constraint("Tangent", 41, 1, 39, 1))
sketch4.addConstraint(Sketcher.Constraint("Coincident", 42, 2, 43, 1))
sketch4.addConstraint(Sketcher.Constraint("Coincident", 43, 2, 44, 2))
sketch4.addConstraint(Sketcher.Constraint("Tangent", 44, 1, 42, 1))
sketch4.addConstraint(Sketcher.Constraint("Coincident", 45, 2, 46, 1))
sketch4.addConstraint(Sketcher.Constraint("Coincident", 46, 2, 47, 2))
sketch4.addConstraint(Sketcher.Constraint("Tangent", 47, 1, 45, 1))
sketch4.addConstraint(Sketcher.Constraint("Coincident", 48, 2, 49, 1))
sketch4.addConstraint(Sketcher.Constraint("Coincident", 49, 2, 50, 2))
sketch4.addConstraint(Sketcher.Constraint("Tangent", 50, 1, 48, 1))
sketch4.addConstraint(Sketcher.Constraint("Coincident", 51, 2, 52, 1))
sketch4.addConstraint(Sketcher.Constraint("Coincident", 52, 2, 53, 2))
sketch4.addConstraint(Sketcher.Constraint("Tangent", 53, 1, 51, 1))
sketch4.addConstraint(Sketcher.Constraint("Coincident", 1, 3, -1, 1))
sketch4.addConstraint(Sketcher.Constraint("Coincident", 5, 3, -1, 1))
sketch4.addConstraint(Sketcher.Constraint("Coincident", 8, 3, -1, 1))
sketch4.addConstraint(Sketcher.Constraint("Coincident", 11, 3, -1, 1))
sketch4.addConstraint(Sketcher.Constraint("Coincident", 14, 3, -1, 1))
sketch4.addConstraint(Sketcher.Constraint("Coincident", 17, 3, -1, 1))
sketch4.addConstraint(Sketcher.Constraint("Coincident", 20, 3, -1, 1))
sketch4.addConstraint(Sketcher.Constraint("Coincident", 23, 3, -1, 1))
sketch4.addConstraint(Sketcher.Constraint("Coincident", 26, 3, -1, 1))
sketch4.addConstraint(Sketcher.Constraint("Coincident", 29, 3, -1, 1))
sketch4.addConstraint(Sketcher.Constraint("Coincident", 32, 3, -1, 1))
sketch4.addConstraint(Sketcher.Constraint("Coincident", 35, 3, -1, 1))
sketch4.addConstraint(Sketcher.Constraint("Coincident", 38, 3, -1, 1))
sketch4.addConstraint(Sketcher.Constraint("Coincident", 41, 3, -1, 1))
sketch4.addConstraint(Sketcher.Constraint("Coincident", 44, 3, -1, 1))
sketch4.addConstraint(Sketcher.Constraint("Coincident", 47, 3, -1, 1))
sketch4.addConstraint(Sketcher.Constraint("Coincident", 50, 3, -1, 1))
sketch4.addConstraint(Sketcher.Constraint("Coincident", 53, 3, -1, 1))
sketch4.addConstraint(Sketcher.Constraint("Equal", 1, 5))
sketch4.addConstraint(Sketcher.Constraint("Equal", 5, 8))
sketch4.addConstraint(Sketcher.Constraint("Equal", 8, 11))
sketch4.addConstraint(Sketcher.Constraint("Equal", 11, 14))
sketch4.addConstraint(Sketcher.Constraint("Equal", 14, 17))
sketch4.addConstraint(Sketcher.Constraint("Equal", 17, 20))
sketch4.addConstraint(Sketcher.Constraint("Equal", 20, 23))
sketch4.addConstraint(Sketcher.Constraint("Equal", 23, 26))
sketch4.addConstraint(Sketcher.Constraint("Equal", 26, 29))
sketch4.addConstraint(Sketcher.Constraint("Equal", 29, 32))
sketch4.addConstraint(Sketcher.Constraint("Equal", 32, 35))
sketch4.addConstraint(Sketcher.Constraint("Equal", 35, 38))
sketch4.addConstraint(Sketcher.Constraint("Equal", 38, 41))
sketch4.addConstraint(Sketcher.Constraint("Equal", 41, 44))
sketch4.addConstraint(Sketcher.Constraint("Equal", 44, 47))
sketch4.addConstraint(Sketcher.Constraint("Equal", 47, 50))
sketch4.addConstraint(Sketcher.Constraint("Equal", 50, 53))
sketch4.addConstraint(Sketcher.Constraint("Symmetric", 2, 2, 27, 2, -1, 1))
sketch4.addConstraint(Sketcher.Constraint("Symmetric", 3, 2, 30, 2, -1, 1))
sketch4.addConstraint(Sketcher.Constraint("Symmetric", 6, 2, 33, 2, -1, 1))
sketch4.addConstraint(Sketcher.Constraint("Symmetric", 9, 2, 36, 2, -1, 1))
sketch4.addConstraint(Sketcher.Constraint("Symmetric", 12, 2, 39, 2, -1, 1))
sketch4.addConstraint(Sketcher.Constraint("Symmetric", 15, 2, 42, 2, -1, 1))
sketch4.addConstraint(Sketcher.Constraint("Symmetric", 18, 2, 45, 2, -1, 1))
sketch4.addConstraint(Sketcher.Constraint("Symmetric", 21, 2, 48, 2, -1, 1))
sketch4.addConstraint(Sketcher.Constraint("Symmetric", 24, 2, 51, 2, -1, 1))
sketch4.addConstraint(Sketcher.Constraint("Parallel", 0, 28))
sketch4.addConstraint(Sketcher.Constraint("Parallel", 4, 31))
sketch4.addConstraint(Sketcher.Constraint("Parallel", 7, 34))
sketch4.addConstraint(Sketcher.Constraint("Parallel", 10, 37))
sketch4.addConstraint(Sketcher.Constraint("Parallel", 13, 40))
sketch4.addConstraint(Sketcher.Constraint("Parallel", 16, 43))
sketch4.addConstraint(Sketcher.Constraint("Parallel", 19, 46))
sketch4.addConstraint(Sketcher.Constraint("Parallel", 22, 49))
sketch4.addConstraint(Sketcher.Constraint("Parallel", 25, 52))
sketch4.addConstraint(Sketcher.Constraint("Horizontal", 0, 2, 1, 1))
sketch4.addConstraint(Sketcher.Constraint("Horizontal", 26, 1, 31, 2))
sketch4.addConstraint(Sketcher.Constraint("Horizontal", 25, 2, 32, 1))
sketch4.addConstraint(Sketcher.Constraint("Horizontal", 23, 1, 34, 2))
sketch4.addConstraint(Sketcher.Constraint("Horizontal", 22, 2, 35, 1))
sketch4.addConstraint(Sketcher.Constraint("Horizontal", 20, 1, 37, 2))
sketch4.addConstraint(Sketcher.Constraint("Horizontal", 19, 2, 38, 1))
sketch4.addConstraint(Sketcher.Constraint("Horizontal", 17, 1, 40, 2))
sketch4.addConstraint(Sketcher.Constraint("Horizontal", 16, 2, 41, 1))
sketch4.addConstraint(Sketcher.Constraint("Equal", 2, 3))
sketch4.addConstraint(Sketcher.Constraint("Equal", 0, 4))
sketch4.addConstraint(Sketcher.Constraint("Equal", 3, 6))
sketch4.addConstraint(Sketcher.Constraint("Equal", 4, 7))
sketch4.addConstraint(Sketcher.Constraint("Equal", 6, 9))
sketch4.addConstraint(Sketcher.Constraint("Equal", 7, 10))
sketch4.addConstraint(Sketcher.Constraint("Equal", 9, 12))
sketch4.addConstraint(Sketcher.Constraint("Equal", 10, 13))
sketch4.addConstraint(Sketcher.Constraint("Equal", 12, 15))
sketch4.addConstraint(Sketcher.Constraint("Equal", 15, 18))
sketch4.addConstraint(Sketcher.Constraint("Equal", 18, 21))
sketch4.addConstraint(Sketcher.Constraint("Equal", 21, 24))
sketch4.addConstraint(Sketcher.Constraint("Radius", 1, 23.0))
sketch4.addConstraint(Sketcher.Constraint("Distance", 2, 9.2))
sketch4.addConstraint(Sketcher.Constraint("DistanceX", 0, 2, -1, 1, 3.5))
sketch4.addConstraint(Sketcher.Constraint("DistanceY", -1, 1, 3, 2, 24.589659))
sketch4.addConstraint(Sketcher.Constraint("DistanceX", -1, 1, 7, 2, 11.93078))
sketch4.addConstraint(Sketcher.Constraint("DistanceY", -1, 1, 9, 2, 16.909622))
sketch4.addConstraint(Sketcher.Constraint("DistanceY", -1, 1, 13, 2, 7.394221))
pad1 = doc.addObject("PartDesign::Pad", "Pad")
body.addObject(pad1)
pad1.Profile = sketch4
pad1.Length = 16
pad1.Midplane = True

doc.recompute()
